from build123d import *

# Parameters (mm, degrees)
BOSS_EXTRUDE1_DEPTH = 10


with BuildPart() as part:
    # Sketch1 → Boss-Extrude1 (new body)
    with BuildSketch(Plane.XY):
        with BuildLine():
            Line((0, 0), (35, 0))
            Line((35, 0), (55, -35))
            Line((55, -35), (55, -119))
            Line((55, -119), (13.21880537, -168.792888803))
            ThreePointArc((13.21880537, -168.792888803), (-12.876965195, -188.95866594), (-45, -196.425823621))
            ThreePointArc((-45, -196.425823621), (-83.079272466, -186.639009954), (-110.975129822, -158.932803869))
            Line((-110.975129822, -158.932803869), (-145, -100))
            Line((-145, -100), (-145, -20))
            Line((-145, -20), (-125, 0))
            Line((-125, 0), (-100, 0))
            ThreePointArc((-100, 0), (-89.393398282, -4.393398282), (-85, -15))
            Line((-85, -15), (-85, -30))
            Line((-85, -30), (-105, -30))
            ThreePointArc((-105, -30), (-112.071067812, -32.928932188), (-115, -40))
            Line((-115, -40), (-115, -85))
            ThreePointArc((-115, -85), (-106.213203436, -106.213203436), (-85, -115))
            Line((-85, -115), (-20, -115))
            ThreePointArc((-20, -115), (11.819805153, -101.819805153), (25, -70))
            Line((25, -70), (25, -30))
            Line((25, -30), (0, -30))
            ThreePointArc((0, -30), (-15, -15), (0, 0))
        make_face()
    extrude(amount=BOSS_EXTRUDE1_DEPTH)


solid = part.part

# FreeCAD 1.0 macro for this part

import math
import FreeCAD as App
import Part
import Sketcher

V = App.Vector
Q = App.Units.Quantity

doc = App.newDocument("Part")
params = doc.addObject("Spreadsheet::Sheet", "Params")
for row, (alias, value) in enumerate([
    ("sketch1_radius", "15 mm"),
    ("sketch1_radius2", "45 mm"),
    ("sketch1_radius3", "30 mm"),
    ("sketch1_radius4", "10 mm"),
    ("sketch1_radius5", "75 mm"),
    ("pad1_length", "10 mm"),
], start=1):
    params.set(f"A{row}", alias)
    params.set(f"B{row}", "=" + value)
    params.setAlias(f"B{row}", alias)

body = doc.addObject("PartDesign::Body", "Body")

# Sketch on XY plane
sketch1 = body.newObject("Sketcher::SketchObject", "Sketch")
sketch1.AttachmentSupport = (doc.getObject("XY_Plane"), [""])
sketch1.MapMode = "FlatFace"
sketch1.addGeometry(Part.LineSegment(V(35, 0, 0), V(0, 0, 0)), False)
sketch1.addGeometry(Part.ArcOfCircle(Part.Circle(V(0, -15, 0), V(0, 0, 1), 15), math.radians(90), math.radians(270)), False)
sketch1.addGeometry(Part.LineSegment(V(0, -30, 0), V(25, -30, 0)), False)
sketch1.addGeometry(Part.LineSegment(V(25, -30, 0), V(25, -70, 0)), False)
sketch1.addGeometry(Part.ArcOfCircle(Part.Circle(V(-20, -70, 0), V(0, 0, 1), 45), math.radians(-90), math.radians(0)), False)
sketch1.addGeometry(Part.LineSegment(V(-20, -115, 0), V(-85, -115, 0)), False)
sketch1.addGeometry(Part.ArcOfCircle(Part.Circle(V(-85, -85, 0), V(0, 0, 1), 30), math.radians(180), math.radians(270)), False)
sketch1.addGeometry(Part.LineSegment(V(-115, -85, 0), V(-115, -40, 0)), False)
sketch1.addGeometry(Part.ArcOfCircle(Part.Circle(V(-105, -40, 0), V(0, 0, 1), 10), math.radians(90), math.radians(180)), False)
sketch1.addGeometry(Part.LineSegment(V(-105, -30, 0), V(-85, -30, 0)), False)
sketch1.addGeometry(Part.LineSegment(V(-85, -30, 0), V(-85, -15, 0)), False)
sketch1.addGeometry(Part.ArcOfCircle(Part.Circle(V(-100, -15, 0), V(0, 0, 1), 15), math.radians(0), math.radians(90)), False)
sketch1.addGeometry(Part.LineSegment(V(-100, 0, 0), V(-125, 0, 0)), False)
sketch1.addGeometry(Part.LineSegment(V(-125, 0, 0), V(-145, -20, 0)), False)
sketch1.addGeometry(Part.LineSegment(V(-145, -20, 0), V(-145, -100, 0)), False)
sketch1.addGeometry(Part.LineSegment(V(-145, -100, 0), V(-110.97513, -158.932804, 0)), False)
sketch1.addGeometry(Part.ArcOfCircle(Part.Circle(V(-46.023225, -121.432804, 0), V(0, 0, 1), 75), math.radians(-150), math.radians(-89.21829)), False)
sketch1.addGeometry(Part.ArcOfCircle(Part.Circle(V(-46.055658, -119.055708, 0), V(0, 0, 1), 77.377317), math.radians(-89.21829), math.radians(-40)), False)
sketch1.addGeometry(Part.LineSegment(V(13.218805, -168.792889, 0), V(55, -119, 0)), False)
sketch1.addGeometry(Part.LineSegment(V(55, -119, 0), V(55, -35, 0)), False)
sketch1.addGeometry(Part.LineSegment(V(55, -35, 0), V(35, 0, 0)), False)
sketch1.addConstraint(Sketcher.Constraint("Tangent", 0, 2, 1, 1))
sketch1.addConstraint(Sketcher.Constraint("Tangent", 1, 2, 2, 1))
sketch1.addConstraint(Sketcher.Constraint("Coincident", 2, 2, 3, 1))
sketch1.addConstraint(Sketcher.Constraint("Tangent", 3, 2, 4, 2))
sketch1.addConstraint(Sketcher.Constraint("Tangent", 4, 1, 5, 1))
sketch1.addConstraint(Sketcher.Constraint("Tangent", 5, 2, 6, 2))
sketch1.addConstraint(Sketcher.Constraint("Tangent", 6, 1, 7, 1))
sketch1.addConstraint(Sketcher.Constraint("Tangent", 7, 2, 8, 2))
sketch1.addConstraint(Sketcher.Constraint("Tangent", 8, 1, 9, 1))
sketch1.addConstraint(Sketcher.Constraint("Coincident", 9, 2, 10, 1))
sketch1.addConstraint(Sketcher.Constraint("Tangent", 10, 2, 11, 1))
sketch1.addConstraint(Sketcher.Constraint("Tangent", 11, 2, 12, 1))
sketch1.addConstraint(Sketcher.Constraint("Coincident", 12, 2, 13, 1))
sketch1.addConstraint(Sketcher.Constraint("Coincident", 13, 2, 14, 1))
sketch1.addConstraint(Sketcher.Constraint("Coincident", 14, 2, 15, 1))
sketch1.addConstraint(Sketcher.Constraint("Tangent", 15, 2, 16, 1))
sketch1.addConstraint(Sketcher.Constraint("Tangent", 16, 2, 17, 1))
sketch1.addConstraint(Sketcher.Constraint("Tangent", 17, 2, 18, 1))
sketch1.addConstraint(Sketcher.Constraint("Coincident", 18, 2, 19, 1))
sketch1.addConstraint(Sketcher.Constraint("Coincident", 19, 2, 20, 1))
sketch1.addConstraint(Sketcher.Constraint("Coincident", 20, 2, 0, 1))
sketch1.addConstraint(Sketcher.Constraint("Horizontal", 0))
sketch1.addConstraint(Sketcher.Constraint("Horizontal", 2))
sketch1.addConstraint(Sketcher.Constraint("Vertical", 3))
sketch1.addConstraint(Sketcher.Constraint("Horizontal", 5))
sketch1.addConstraint(Sketcher.Constraint("Vertical", 7))
sketch1.addConstraint(Sketcher.Constraint("Horizontal", 9))
sketch1.addConstraint(Sketcher.Constraint("Vertical", 10))
sketch1.addConstraint(Sketcher.Constraint("Horizontal", 12))
sketch1.addConstraint(Sketcher.Constraint("Vertical", 14))
sketch1.addConstraint(Sketcher.Constraint("Vertical", 19))
sketch1.addConstraint(Sketcher.Constraint("Coincident", 0, 2, -1, 1))
sketch1.addConstraint(Sketcher.Constraint("Equal", 1, 11))
sketch1.addConstraint(Sketcher.Constraint("PointOnObject", 11, 2, -1))
sketch1.addConstraint(Sketcher.Constraint("Horizontal", 2, 2, 8, 1))
sketch1.addConstraint(Sketcher.Constraint("Vertical", 5, 2, 9, 2))
sketch1.addConstraint(Sketcher.Constraint("Equal", 2, 12))
sketch1.addConstraint(Sketcher.Constraint("Radius", 1, 15.0))
sketch1.addConstraint(Sketcher.Constraint("Radius", 4, 45.0))
sketch1.addConstraint(Sketcher.Constraint("Radius", 6, 30.0))
sketch1.addConstraint(Sketcher.Constraint("Radius", 8, 10.0))
sketch1.addConstraint(Sketcher.Constraint("Radius", 16, 75.0))
sketch1.addConstraint(Sketcher.Constraint("DistanceX", 0, 2, 0, 1, 35.0))
sketch1.addConstraint(Sketcher.Constraint("DistanceX", 2, 1, 2, 2, 25.0))
sketch1.addConstraint(Sketcher.Constraint("DistanceX", 5, 2, 5, 1, 65.0))
sketch1.addConstraint(Sketcher.Constraint("DistanceY", 3, 2, 3, 1, 40.0))
sketch1.addConstraint(Sketcher.Constraint("DistanceY", 14, 2, 14, 1, 80.0))
sketch1.addConstraint(Sketcher.Constraint("DistanceY", 19, 1, 19, 2, 84.0))
sketch1.addConstraint(Sketcher.Constraint("Angle", 13, Q("-135 deg")))
sketch1.addConstraint(Sketcher.Constraint("Angle", 15, Q("-60 deg")))
sketch1.addConstraint(Sketcher.Constraint("Angle", 18, Q("50 deg")))
sketch1.addConstraint(Sketcher.Constraint("Distance", 18, 65.0))
sketch1.addConstraint(Sketcher.Constraint("DistanceX", 13, 2, -1, 1, 145.0))
sketch1.addConstraint(Sketcher.Constraint("DistanceX", 16, 2, -1, 1, 45.0))
sketch1.addConstraint(Sketcher.Constraint("DistanceX", -1, 1, 18, 2, 55.0))
sketch1.addConstraint(Sketcher.Constraint("DistanceY", 18, 2, -1, 1, 119.0))
sketch1.setExpression("Constraints[37]", "Params.sketch1_radius")
sketch1.setExpression("Constraints[38]", "Params.sketch1_radius2")
sketch1.setExpression("Constraints[39]", "Params.sketch1_radius3")
sketch1.setExpression("Constraints[40]", "Params.sketch1_radius4")
sketch1.setExpression("Constraints[41]", "Params.sketch1_radius5")
pad1 = body.newObject("PartDesign::Pad", "Pad")
pad1.Profile = sketch1
pad1.setExpression("Length", "Params.pad1_length")

doc.recompute()
